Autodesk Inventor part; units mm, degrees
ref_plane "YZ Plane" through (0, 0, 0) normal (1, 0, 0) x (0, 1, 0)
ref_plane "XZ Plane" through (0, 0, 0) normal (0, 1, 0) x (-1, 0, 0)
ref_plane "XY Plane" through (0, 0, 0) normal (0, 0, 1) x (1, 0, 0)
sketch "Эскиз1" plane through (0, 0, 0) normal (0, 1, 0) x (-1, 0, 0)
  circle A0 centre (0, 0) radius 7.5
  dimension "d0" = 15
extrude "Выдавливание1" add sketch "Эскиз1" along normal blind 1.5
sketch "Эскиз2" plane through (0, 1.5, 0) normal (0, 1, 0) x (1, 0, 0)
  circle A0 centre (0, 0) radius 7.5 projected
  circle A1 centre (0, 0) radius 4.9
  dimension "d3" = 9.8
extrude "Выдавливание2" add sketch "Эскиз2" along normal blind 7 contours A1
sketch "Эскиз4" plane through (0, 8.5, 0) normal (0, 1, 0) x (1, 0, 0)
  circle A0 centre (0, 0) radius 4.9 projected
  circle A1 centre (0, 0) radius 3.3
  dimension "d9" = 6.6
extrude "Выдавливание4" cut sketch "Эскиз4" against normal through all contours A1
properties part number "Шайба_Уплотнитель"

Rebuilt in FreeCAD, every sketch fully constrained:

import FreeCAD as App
import Part
import Sketcher
from FreeCAD import Vector

doc = App.newDocument("Part")
params = doc.addObject("Spreadsheet::Sheet", "Params")
for row, (alias, value) in enumerate([
    ("sketch1_diameter", "15 mm"),
    ("pad1_length", "1.5 mm"),
    ("sketch2_diameter", "9.8 mm"),
    ("pad2_length", "7 mm"),
    ("sketch3_diameter", "6.6 mm"),
], start=1):
    params.set(f"A{row}", alias)
    params.set(f"B{row}", "=" + value)
    params.setAlias(f"B{row}", alias)

body = doc.addObject("PartDesign::Body", "Body")

# Sketch on XZ plane
sketch1 = body.newObject("Sketcher::SketchObject", "Sketch")
sketch1.AttachmentSupport = (doc.getObject("XZ_Plane"), [""])
sketch1.MapMode = "FlatFace"
sketch1.addGeometry(Part.Circle(Vector(0, 0, 0), Vector(0, 0, 1), 7.5), False)
sketch1.addConstraint(Sketcher.Constraint("Coincident", 0, 3, -1, 1))
sketch1.addConstraint(Sketcher.Constraint("Diameter", 0, 15.0))
sketch1.setExpression("Constraints[1]", "Params.sketch1_diameter")
pad1 = body.newObject("PartDesign::Pad", "Pad")
pad1.Profile = sketch1
pad1.setExpression("Length", "Params.pad1_length")
pad1.Reversed = True

# Sketch on XZ plane
sketch2 = body.newObject("Sketcher::SketchObject", "Sketch001")
sketch2.AttachmentSupport = (doc.getObject("XZ_Plane"), [""])
sketch2.MapMode = "FlatFace"
sketch2.AttachmentOffset = App.Placement(Vector(0, 0, -1.5), App.Rotation())
sketch2.addGeometry(Part.Circle(Vector(0, 0, 0), Vector(0, 0, 1), 4.9), False)
sketch2.addConstraint(Sketcher.Constraint("Coincident", 0, 3, -1, 1))
sketch2.addConstraint(Sketcher.Constraint("Diameter", 0, 9.8))
sketch2.setExpression("Constraints[1]", "Params.sketch2_diameter")
pad2 = body.newObject("PartDesign::Pad", "Pad001")
pad2.Profile = sketch2
pad2.setExpression("Length", "Params.pad2_length")
pad2.Reversed = True

# Sketch on XZ plane
sketch3 = body.newObject("Sketcher::SketchObject", "Sketch002")
sketch3.AttachmentSupport = (doc.getObject("XZ_Plane"), [""])
sketch3.MapMode = "FlatFace"
sketch3.AttachmentOffset = App.Placement(Vector(0, 0, -8.5), App.Rotation())
sketch3.addGeometry(Part.Circle(Vector(0, 0, 0), Vector(0, 0, 1), 3.3), False)
sketch3.addConstraint(Sketcher.Constraint("Coincident", 0, 3, -1, 1))
sketch3.addConstraint(Sketcher.Constraint("Diameter", 0, 6.6))
sketch3.setExpression("Constraints[1]", "Params.sketch3_diameter")
pocket1 = body.newObject("PartDesign::Pocket", "Pocket")
pocket1.Profile = sketch3
pocket1.Type = "ThroughAll"
pocket1.Reversed = True

doc.recompute()
